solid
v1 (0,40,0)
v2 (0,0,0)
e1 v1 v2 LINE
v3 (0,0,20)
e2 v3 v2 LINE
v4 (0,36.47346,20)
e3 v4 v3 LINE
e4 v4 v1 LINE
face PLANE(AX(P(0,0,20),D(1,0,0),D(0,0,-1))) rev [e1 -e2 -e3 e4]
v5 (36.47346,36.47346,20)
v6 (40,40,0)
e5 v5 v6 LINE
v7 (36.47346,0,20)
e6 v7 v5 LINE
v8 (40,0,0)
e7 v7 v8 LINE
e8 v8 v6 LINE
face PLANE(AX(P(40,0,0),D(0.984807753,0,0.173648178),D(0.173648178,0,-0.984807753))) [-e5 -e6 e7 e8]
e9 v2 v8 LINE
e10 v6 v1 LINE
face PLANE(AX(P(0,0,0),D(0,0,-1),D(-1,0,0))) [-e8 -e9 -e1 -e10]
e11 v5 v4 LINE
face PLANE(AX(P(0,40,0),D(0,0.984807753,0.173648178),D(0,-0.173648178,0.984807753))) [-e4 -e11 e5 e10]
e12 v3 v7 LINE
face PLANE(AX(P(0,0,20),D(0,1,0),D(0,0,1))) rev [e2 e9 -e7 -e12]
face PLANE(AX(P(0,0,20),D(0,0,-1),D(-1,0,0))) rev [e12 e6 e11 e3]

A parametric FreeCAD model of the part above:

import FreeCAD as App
import Part
import Sketcher
from FreeCAD import Vector
Q = App.Units.Quantity


def faces_at(feature, points):
    """Names of the faces that lie closest to the given points."""
    faces = feature.Shape.Faces
    near = lambda p: min(range(len(faces)), key=lambda i: faces[i].distToShape(Part.Vertex(*p))[0])
    return sorted({f"Face{near(p) + 1}" for p in points})

doc = App.newDocument("Part")
params = doc.addObject("Spreadsheet::Sheet", "Params")
for row, (alias, value) in enumerate([
    ("sketch1_width", "40 mm"),
    ("pad1_length", "20 mm"),
    ("draft_angle", "10 deg"),
], start=1):
    params.set(f"A{row}", alias)
    params.set(f"B{row}", "=" + value)
    params.setAlias(f"B{row}", alias)

body = doc.addObject("PartDesign::Body", "Body")

sketch1 = body.newObject("Sketcher::SketchObject", "Sketch")
sketch1.AttachmentSupport = (doc.getObject("XY_Plane"), [""])
sketch1.MapMode = "FlatFace"
sketch1.addGeometry([
    Part.LineSegment(Vector(0, 40, 0), Vector(0, 0, 0)),
    Part.LineSegment(Vector(0, 0, 0), Vector(40, 0, 0)),
    Part.LineSegment(Vector(40, 0, 0), Vector(40, 40, 0)),
    Part.LineSegment(Vector(40, 40, 0), Vector(0, 40, 0)),
], False)
sketch1.addConstraint([
    Sketcher.Constraint("Coincident", 0, 2, 1, 1),
    Sketcher.Constraint("Coincident", 1, 2, 2, 1),
    Sketcher.Constraint("Coincident", 2, 2, 3, 1),
    Sketcher.Constraint("Coincident", 3, 2, 0, 1),
    Sketcher.Constraint("Vertical", 0),
    Sketcher.Constraint("Horizontal", 1),
    Sketcher.Constraint("Vertical", 2),
    Sketcher.Constraint("Horizontal", 3),
    Sketcher.Constraint("Coincident", 0, 2, -1, 1),
    Sketcher.Constraint("Equal", 3, 0),
    Sketcher.Constraint("DistanceX", 1, 1, 1, 2, Q("40 mm")),
])
sketch1.setExpression("Constraints[10]", "Params.sketch1_width")
pad1 = body.newObject("PartDesign::Pad", "Pad")
pad1.Profile = sketch1
pad1.setExpression("Length", "Params.pad1_length")
doc.recompute()

draft = body.newObject("PartDesign::Draft", "Draft")
draft.Base = (pad1, faces_at(pad1, [(20, 40, 10), (40, 20, 10)]))
draft.NeutralPlane = (doc.getObject("XY_Plane"), [""])
draft.setExpression("Angle", "Params.draft_angle")
draft.Reversed = False

doc.recompute()
